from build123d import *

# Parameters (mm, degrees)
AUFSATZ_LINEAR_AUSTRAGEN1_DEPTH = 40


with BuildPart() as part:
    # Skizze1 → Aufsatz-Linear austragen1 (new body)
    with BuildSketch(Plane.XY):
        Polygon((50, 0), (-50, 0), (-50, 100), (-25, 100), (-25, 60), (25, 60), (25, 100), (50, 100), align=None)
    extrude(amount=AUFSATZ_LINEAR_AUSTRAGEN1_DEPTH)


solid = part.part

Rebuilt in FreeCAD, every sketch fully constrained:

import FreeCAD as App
import Part
import Sketcher
Q = App.Units.Quantity

doc = App.newDocument("Part")
body = doc.addObject("PartDesign::Body", "Body")

# Sketch on XY plane
sketch1 = body.newObject("Sketcher::SketchObject", "Sketch")
sketch1.AttachmentSupport = (doc.getObject("XY_Plane"), [""])
sketch1.MapMode = "FlatFace"
sketch1.addGeometry(Part.LineSegment(App.Vector(-50, 0, 0), App.Vector(50, 0, 0)), False)
sketch1.addGeometry(Part.LineSegment(App.Vector(50, 0, 0), App.Vector(50, 100, 0)), False)
sketch1.addGeometry(Part.LineSegment(App.Vector(50, 100, 0), App.Vector(25, 100, 0)), False)
sketch1.addGeometry(Part.LineSegment(App.Vector(25, 100, 0), App.Vector(25, 60, 0)), False)
sketch1.addGeometry(Part.LineSegment(App.Vector(25, 60, 0), App.Vector(-25, 60, 0)), False)
sketch1.addGeometry(Part.LineSegment(App.Vector(-25, 60, 0), App.Vector(-25, 100, 0)), False)
sketch1.addGeometry(Part.LineSegment(App.Vector(-25, 100, 0), App.Vector(-50, 100, 0)), False)
sketch1.addGeometry(Part.LineSegment(App.Vector(-50, 100, 0), App.Vector(-50, 0, 0)), False)
sketch1.addConstraint(Sketcher.Constraint("Coincident", 0, 2, 1, 1))
sketch1.addConstraint(Sketcher.Constraint("Coincident", 1, 2, 2, 1))
sketch1.addConstraint(Sketcher.Constraint("Coincident", 2, 2, 3, 1))
sketch1.addConstraint(Sketcher.Constraint("Coincident", 3, 2, 4, 1))
sketch1.addConstraint(Sketcher.Constraint("Coincident", 4, 2, 5, 1))
sketch1.addConstraint(Sketcher.Constraint("Coincident", 5, 2, 6, 1))
sketch1.addConstraint(Sketcher.Constraint("Coincident", 6, 2, 7, 1))
sketch1.addConstraint(Sketcher.Constraint("Coincident", 7, 2, 0, 1))
sketch1.addConstraint(Sketcher.Constraint("Horizontal", 0))
sketch1.addConstraint(Sketcher.Constraint("Vertical", 1))
sketch1.addConstraint(Sketcher.Constraint("Horizontal", 2))
sketch1.addConstraint(Sketcher.Constraint("Vertical", 3))
sketch1.addConstraint(Sketcher.Constraint("Horizontal", 4))
sketch1.addConstraint(Sketcher.Constraint("Vertical", 5))
sketch1.addConstraint(Sketcher.Constraint("Horizontal", 6))
sketch1.addConstraint(Sketcher.Constraint("Vertical", 7))
sketch1.addConstraint(Sketcher.Constraint("Symmetric", 0, 2, 7, 2, -1, 1))
sketch1.addConstraint(Sketcher.Constraint("Symmetric", 2, 2, 5, 2, -2))
sketch1.addConstraint(Sketcher.Constraint("Equal", 0, 1))
sketch1.addConstraint(Sketcher.Constraint("DistanceX", 0, 1, 0, 2, Q("100 mm")))
sketch1.addConstraint(Sketcher.Constraint("DistanceX", 2, 2, 2, 1, Q("25 mm")))
sketch1.addConstraint(Sketcher.Constraint("DistanceY", 3, 2, 3, 1, Q("40 mm")))
pad1 = body.newObject("PartDesign::Pad", "Pad")
pad1.Profile = sketch1
pad1.Length = 40

doc.recompute()
